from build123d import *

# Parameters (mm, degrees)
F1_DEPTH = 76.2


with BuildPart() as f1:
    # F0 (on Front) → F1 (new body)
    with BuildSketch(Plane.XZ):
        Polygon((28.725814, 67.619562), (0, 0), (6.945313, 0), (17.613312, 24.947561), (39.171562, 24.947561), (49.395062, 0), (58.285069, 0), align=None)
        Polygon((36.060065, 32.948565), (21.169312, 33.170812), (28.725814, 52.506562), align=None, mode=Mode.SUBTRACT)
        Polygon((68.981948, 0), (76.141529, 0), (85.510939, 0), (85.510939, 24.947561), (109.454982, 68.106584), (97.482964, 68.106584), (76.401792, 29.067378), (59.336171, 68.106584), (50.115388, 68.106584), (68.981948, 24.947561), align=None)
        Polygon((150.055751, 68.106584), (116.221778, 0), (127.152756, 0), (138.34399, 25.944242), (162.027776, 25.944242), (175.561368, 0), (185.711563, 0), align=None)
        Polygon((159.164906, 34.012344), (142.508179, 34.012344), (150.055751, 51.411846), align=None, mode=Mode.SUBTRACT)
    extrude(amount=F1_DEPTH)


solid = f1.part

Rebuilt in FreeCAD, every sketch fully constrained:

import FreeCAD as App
import Part
import Sketcher
from FreeCAD import Vector
Q = App.Units.Quantity


def add_polygon(sketch, points):
    """Adds a closed chain of lines whose ends are joined by coincident constraints."""
    first, n = sketch.GeometryCount, len(points)
    for a, b in zip(points, points[1:] + points[:1]):
        sketch.addGeometry(Part.LineSegment(App.Vector(*a, 0), App.Vector(*b, 0)), False)
    for i in range(n):
        sketch.addConstraint(Sketcher.Constraint("Coincident", first + i, 2, first + (i + 1) % n, 1))

doc = App.newDocument("Part")
params = doc.addObject("Spreadsheet::Sheet", "Params")
for row, (alias, value) in enumerate([
    ("pad1_length", "3 in"),
], start=1):
    params.set(f"A{row}", alias)
    params.set(f"B{row}", "=" + value)
    params.setAlias(f"B{row}", alias)

body = doc.addObject("PartDesign::Body", "Body")
body.AllowCompound = True

# Sketch on XZ plane
sketch1 = body.newObject("Sketcher::SketchObject", "Sketch")
sketch1.AttachmentSupport = (doc.getObject("XZ_Plane"), [""])
sketch1.MapMode = "FlatFace"
add_polygon(sketch1, [(29, 68), (0, 0), (7, 0), (18, 25), (39, 25), (49, 0), (58, 0)])  # lines 0-6
add_polygon(sketch1, [(29, 53), (36, 33), (21, 33)])  # lines 7-9
add_polygon(sketch1, [(69, 0), (86, 0), (86, 25), (109, 68), (97, 68), (76, 29), (59, 68), (50, 68), (69, 25)])  # lines 10-18
add_polygon(sketch1, [(150, 68), (116, 0), (127, 0), (138, 26), (162, 26), (176, 0), (186, 0)])  # lines 19-25
add_polygon(sketch1, [(150, 51), (159, 34), (143, 34)])  # lines 26-28
sketch1.addConstraint(Sketcher.Constraint("Horizontal", 1))
sketch1.addConstraint(Sketcher.Constraint("Horizontal", 3))
sketch1.addConstraint(Sketcher.Constraint("Horizontal", 5))
sketch1.addConstraint(Sketcher.Constraint("Horizontal", 10))
sketch1.addConstraint(Sketcher.Constraint("Vertical", 11))
sketch1.addConstraint(Sketcher.Constraint("Horizontal", 13))
sketch1.addConstraint(Sketcher.Constraint("Horizontal", 16))
sketch1.addConstraint(Sketcher.Constraint("Vertical", 18))
sketch1.addConstraint(Sketcher.Constraint("Horizontal", 20))
sketch1.addConstraint(Sketcher.Constraint("Horizontal", 22))
sketch1.addConstraint(Sketcher.Constraint("Horizontal", 24))
sketch1.addConstraint(Sketcher.Constraint("Horizontal", 27))
sketch1.addConstraint(Sketcher.Constraint("Coincident", 0, 2, -1, 1))
sketch1.addConstraint(Sketcher.Constraint("PointOnObject", 4, 2, -1))
sketch1.addConstraint(Sketcher.Constraint("PointOnObject", 10, 2, -1))
sketch1.addConstraint(Sketcher.Constraint("PointOnObject", 19, 2, -1))
sketch1.addConstraint(Sketcher.Constraint("PointOnObject", 23, 2, -1))
sketch1.addConstraint(Sketcher.Constraint("Parallel", 6, 15))
sketch1.addConstraint(Sketcher.Constraint("Parallel", 15, 17))
sketch1.addConstraint(Sketcher.Constraint("Parallel", 25, 26))
sketch1.addConstraint(Sketcher.Constraint("Horizontal", 3, 2, 11, 2))
sketch1.addConstraint(Sketcher.Constraint("Horizontal", 13, 2, 15, 2))
sketch1.addConstraint(Sketcher.Constraint("Horizontal", 11, 2, 17, 2))
sketch1.addConstraint(Sketcher.Constraint("Horizontal", 16, 2, 25, 2))
sketch1.addConstraint(Sketcher.Constraint("Vertical", 6, 2, 9, 2))
sketch1.addConstraint(Sketcher.Constraint("Vertical", 25, 2, 28, 2))
sketch1.addConstraint(Sketcher.Constraint("DistanceX", 1, 2, 2, 2, Q("0.42 in")))
sketch1.addConstraint(Sketcher.Constraint("DistanceY", 3, 2, 6, 2, Q("1.68 in")))
sketch1.addConstraint(Sketcher.Constraint("DistanceX", 2, 2, 8, 2, Q("0.14 in")))
sketch1.addConstraint(Sketcher.Constraint("DistanceY", 7, 2, 9, 2, Q("0.7699999 in")))
sketch1.addConstraint(Sketcher.Constraint("DistanceX", 2, 2, 6, 2, Q("0.4375001 in")))
sketch1.addConstraint(Sketcher.Constraint("DistanceY", 3, 2, 7, 2, Q("0.3150002 in")))
sketch1.addConstraint(Sketcher.Constraint("DistanceX", 7, 2, 4, 2, Q("0.5249999 in")))
sketch1.addConstraint(Sketcher.Constraint("DistanceX", 7, 2, 5, 2, Q("0.8750002 in")))
sketch1.addConstraint(Sketcher.Constraint("DistanceX", 3, 2, 4, 2, Q("0.4025 in")))
sketch1.addConstraint(Sketcher.Constraint("DistanceX", 3, 1, 3, 2, Q("21.55825 mm")))
sketch1.addConstraint(Sketcher.Constraint("DistanceX", 10, 1, 10, 2, Q("16.528991 mm")))
sketch1.addConstraint(Sketcher.Constraint("DistanceX", 13, 2, 13, 1, Q("11.972018 mm")))
sketch1.addConstraint(Sketcher.Constraint("DistanceY", 11, 1, 11, 2, Q("24.947561 mm")))
sketch1.addConstraint(Sketcher.Constraint("DistanceY", 27, 2, 28, 2, Q("17.399502 mm")))
sketch1.addConstraint(Sketcher.Constraint("Distance", 8, Q("14.892411 mm")))
sketch1.addConstraint(Sketcher.Constraint("Distance", 15, Q("42.606279 mm")))
sketch1.addConstraint(Sketcher.Constraint("Distance", 17, Q("47.10253 mm")))
sketch1.addConstraint(Sketcher.Constraint("Distance", 23, Q("29.261951 mm")))
sketch1.addConstraint(Sketcher.Constraint("Distance", 26, Q("19.63974 mm")))
sketch1.addConstraint(Sketcher.Constraint("DistanceX", 1, 1, 1, 2, Q("6.945313 mm")))
sketch1.addConstraint(Sketcher.Constraint("DistanceX", 16, 2, 16, 1, Q("9.220783 mm")))
sketch1.addConstraint(Sketcher.Constraint("DistanceX", 20, 1, 20, 2, Q("10.930978 mm")))
sketch1.addConstraint(Sketcher.Constraint("DistanceX", 22, 1, 22, 2, Q("23.683786 mm")))
sketch1.addConstraint(Sketcher.Constraint("DistanceX", 24, 1, 24, 2, Q("10.150195 mm")))
sketch1.addConstraint(Sketcher.Constraint("DistanceX", 27, 2, 27, 1, Q("16.656727 mm")))
sketch1.addConstraint(Sketcher.Constraint("DistanceX", -1, 1, 10, 2, Q("85.510939 mm")))
sketch1.addConstraint(Sketcher.Constraint("DistanceX", -1, 1, 12, 2, Q("109.454982 mm")))
sketch1.addConstraint(Sketcher.Constraint("DistanceX", -1, 1, 19, 2, Q("116.221778 mm")))
sketch1.addConstraint(Sketcher.Constraint("DistanceX", -1, 1, 21, 2, Q("138.34399 mm")))
sketch1.addConstraint(Sketcher.Constraint("DistanceY", -1, 1, 21, 2, Q("25.944242 mm")))
sketch1.addConstraint(Sketcher.Constraint("DistanceY", 26, 2, 25, 2, Q("34.09424 mm")))
pad1 = body.newObject("PartDesign::Pad", "Pad")
pad1.Profile = sketch1
pad1.setExpression("Length", "Params.pad1_length")

doc.recompute()
